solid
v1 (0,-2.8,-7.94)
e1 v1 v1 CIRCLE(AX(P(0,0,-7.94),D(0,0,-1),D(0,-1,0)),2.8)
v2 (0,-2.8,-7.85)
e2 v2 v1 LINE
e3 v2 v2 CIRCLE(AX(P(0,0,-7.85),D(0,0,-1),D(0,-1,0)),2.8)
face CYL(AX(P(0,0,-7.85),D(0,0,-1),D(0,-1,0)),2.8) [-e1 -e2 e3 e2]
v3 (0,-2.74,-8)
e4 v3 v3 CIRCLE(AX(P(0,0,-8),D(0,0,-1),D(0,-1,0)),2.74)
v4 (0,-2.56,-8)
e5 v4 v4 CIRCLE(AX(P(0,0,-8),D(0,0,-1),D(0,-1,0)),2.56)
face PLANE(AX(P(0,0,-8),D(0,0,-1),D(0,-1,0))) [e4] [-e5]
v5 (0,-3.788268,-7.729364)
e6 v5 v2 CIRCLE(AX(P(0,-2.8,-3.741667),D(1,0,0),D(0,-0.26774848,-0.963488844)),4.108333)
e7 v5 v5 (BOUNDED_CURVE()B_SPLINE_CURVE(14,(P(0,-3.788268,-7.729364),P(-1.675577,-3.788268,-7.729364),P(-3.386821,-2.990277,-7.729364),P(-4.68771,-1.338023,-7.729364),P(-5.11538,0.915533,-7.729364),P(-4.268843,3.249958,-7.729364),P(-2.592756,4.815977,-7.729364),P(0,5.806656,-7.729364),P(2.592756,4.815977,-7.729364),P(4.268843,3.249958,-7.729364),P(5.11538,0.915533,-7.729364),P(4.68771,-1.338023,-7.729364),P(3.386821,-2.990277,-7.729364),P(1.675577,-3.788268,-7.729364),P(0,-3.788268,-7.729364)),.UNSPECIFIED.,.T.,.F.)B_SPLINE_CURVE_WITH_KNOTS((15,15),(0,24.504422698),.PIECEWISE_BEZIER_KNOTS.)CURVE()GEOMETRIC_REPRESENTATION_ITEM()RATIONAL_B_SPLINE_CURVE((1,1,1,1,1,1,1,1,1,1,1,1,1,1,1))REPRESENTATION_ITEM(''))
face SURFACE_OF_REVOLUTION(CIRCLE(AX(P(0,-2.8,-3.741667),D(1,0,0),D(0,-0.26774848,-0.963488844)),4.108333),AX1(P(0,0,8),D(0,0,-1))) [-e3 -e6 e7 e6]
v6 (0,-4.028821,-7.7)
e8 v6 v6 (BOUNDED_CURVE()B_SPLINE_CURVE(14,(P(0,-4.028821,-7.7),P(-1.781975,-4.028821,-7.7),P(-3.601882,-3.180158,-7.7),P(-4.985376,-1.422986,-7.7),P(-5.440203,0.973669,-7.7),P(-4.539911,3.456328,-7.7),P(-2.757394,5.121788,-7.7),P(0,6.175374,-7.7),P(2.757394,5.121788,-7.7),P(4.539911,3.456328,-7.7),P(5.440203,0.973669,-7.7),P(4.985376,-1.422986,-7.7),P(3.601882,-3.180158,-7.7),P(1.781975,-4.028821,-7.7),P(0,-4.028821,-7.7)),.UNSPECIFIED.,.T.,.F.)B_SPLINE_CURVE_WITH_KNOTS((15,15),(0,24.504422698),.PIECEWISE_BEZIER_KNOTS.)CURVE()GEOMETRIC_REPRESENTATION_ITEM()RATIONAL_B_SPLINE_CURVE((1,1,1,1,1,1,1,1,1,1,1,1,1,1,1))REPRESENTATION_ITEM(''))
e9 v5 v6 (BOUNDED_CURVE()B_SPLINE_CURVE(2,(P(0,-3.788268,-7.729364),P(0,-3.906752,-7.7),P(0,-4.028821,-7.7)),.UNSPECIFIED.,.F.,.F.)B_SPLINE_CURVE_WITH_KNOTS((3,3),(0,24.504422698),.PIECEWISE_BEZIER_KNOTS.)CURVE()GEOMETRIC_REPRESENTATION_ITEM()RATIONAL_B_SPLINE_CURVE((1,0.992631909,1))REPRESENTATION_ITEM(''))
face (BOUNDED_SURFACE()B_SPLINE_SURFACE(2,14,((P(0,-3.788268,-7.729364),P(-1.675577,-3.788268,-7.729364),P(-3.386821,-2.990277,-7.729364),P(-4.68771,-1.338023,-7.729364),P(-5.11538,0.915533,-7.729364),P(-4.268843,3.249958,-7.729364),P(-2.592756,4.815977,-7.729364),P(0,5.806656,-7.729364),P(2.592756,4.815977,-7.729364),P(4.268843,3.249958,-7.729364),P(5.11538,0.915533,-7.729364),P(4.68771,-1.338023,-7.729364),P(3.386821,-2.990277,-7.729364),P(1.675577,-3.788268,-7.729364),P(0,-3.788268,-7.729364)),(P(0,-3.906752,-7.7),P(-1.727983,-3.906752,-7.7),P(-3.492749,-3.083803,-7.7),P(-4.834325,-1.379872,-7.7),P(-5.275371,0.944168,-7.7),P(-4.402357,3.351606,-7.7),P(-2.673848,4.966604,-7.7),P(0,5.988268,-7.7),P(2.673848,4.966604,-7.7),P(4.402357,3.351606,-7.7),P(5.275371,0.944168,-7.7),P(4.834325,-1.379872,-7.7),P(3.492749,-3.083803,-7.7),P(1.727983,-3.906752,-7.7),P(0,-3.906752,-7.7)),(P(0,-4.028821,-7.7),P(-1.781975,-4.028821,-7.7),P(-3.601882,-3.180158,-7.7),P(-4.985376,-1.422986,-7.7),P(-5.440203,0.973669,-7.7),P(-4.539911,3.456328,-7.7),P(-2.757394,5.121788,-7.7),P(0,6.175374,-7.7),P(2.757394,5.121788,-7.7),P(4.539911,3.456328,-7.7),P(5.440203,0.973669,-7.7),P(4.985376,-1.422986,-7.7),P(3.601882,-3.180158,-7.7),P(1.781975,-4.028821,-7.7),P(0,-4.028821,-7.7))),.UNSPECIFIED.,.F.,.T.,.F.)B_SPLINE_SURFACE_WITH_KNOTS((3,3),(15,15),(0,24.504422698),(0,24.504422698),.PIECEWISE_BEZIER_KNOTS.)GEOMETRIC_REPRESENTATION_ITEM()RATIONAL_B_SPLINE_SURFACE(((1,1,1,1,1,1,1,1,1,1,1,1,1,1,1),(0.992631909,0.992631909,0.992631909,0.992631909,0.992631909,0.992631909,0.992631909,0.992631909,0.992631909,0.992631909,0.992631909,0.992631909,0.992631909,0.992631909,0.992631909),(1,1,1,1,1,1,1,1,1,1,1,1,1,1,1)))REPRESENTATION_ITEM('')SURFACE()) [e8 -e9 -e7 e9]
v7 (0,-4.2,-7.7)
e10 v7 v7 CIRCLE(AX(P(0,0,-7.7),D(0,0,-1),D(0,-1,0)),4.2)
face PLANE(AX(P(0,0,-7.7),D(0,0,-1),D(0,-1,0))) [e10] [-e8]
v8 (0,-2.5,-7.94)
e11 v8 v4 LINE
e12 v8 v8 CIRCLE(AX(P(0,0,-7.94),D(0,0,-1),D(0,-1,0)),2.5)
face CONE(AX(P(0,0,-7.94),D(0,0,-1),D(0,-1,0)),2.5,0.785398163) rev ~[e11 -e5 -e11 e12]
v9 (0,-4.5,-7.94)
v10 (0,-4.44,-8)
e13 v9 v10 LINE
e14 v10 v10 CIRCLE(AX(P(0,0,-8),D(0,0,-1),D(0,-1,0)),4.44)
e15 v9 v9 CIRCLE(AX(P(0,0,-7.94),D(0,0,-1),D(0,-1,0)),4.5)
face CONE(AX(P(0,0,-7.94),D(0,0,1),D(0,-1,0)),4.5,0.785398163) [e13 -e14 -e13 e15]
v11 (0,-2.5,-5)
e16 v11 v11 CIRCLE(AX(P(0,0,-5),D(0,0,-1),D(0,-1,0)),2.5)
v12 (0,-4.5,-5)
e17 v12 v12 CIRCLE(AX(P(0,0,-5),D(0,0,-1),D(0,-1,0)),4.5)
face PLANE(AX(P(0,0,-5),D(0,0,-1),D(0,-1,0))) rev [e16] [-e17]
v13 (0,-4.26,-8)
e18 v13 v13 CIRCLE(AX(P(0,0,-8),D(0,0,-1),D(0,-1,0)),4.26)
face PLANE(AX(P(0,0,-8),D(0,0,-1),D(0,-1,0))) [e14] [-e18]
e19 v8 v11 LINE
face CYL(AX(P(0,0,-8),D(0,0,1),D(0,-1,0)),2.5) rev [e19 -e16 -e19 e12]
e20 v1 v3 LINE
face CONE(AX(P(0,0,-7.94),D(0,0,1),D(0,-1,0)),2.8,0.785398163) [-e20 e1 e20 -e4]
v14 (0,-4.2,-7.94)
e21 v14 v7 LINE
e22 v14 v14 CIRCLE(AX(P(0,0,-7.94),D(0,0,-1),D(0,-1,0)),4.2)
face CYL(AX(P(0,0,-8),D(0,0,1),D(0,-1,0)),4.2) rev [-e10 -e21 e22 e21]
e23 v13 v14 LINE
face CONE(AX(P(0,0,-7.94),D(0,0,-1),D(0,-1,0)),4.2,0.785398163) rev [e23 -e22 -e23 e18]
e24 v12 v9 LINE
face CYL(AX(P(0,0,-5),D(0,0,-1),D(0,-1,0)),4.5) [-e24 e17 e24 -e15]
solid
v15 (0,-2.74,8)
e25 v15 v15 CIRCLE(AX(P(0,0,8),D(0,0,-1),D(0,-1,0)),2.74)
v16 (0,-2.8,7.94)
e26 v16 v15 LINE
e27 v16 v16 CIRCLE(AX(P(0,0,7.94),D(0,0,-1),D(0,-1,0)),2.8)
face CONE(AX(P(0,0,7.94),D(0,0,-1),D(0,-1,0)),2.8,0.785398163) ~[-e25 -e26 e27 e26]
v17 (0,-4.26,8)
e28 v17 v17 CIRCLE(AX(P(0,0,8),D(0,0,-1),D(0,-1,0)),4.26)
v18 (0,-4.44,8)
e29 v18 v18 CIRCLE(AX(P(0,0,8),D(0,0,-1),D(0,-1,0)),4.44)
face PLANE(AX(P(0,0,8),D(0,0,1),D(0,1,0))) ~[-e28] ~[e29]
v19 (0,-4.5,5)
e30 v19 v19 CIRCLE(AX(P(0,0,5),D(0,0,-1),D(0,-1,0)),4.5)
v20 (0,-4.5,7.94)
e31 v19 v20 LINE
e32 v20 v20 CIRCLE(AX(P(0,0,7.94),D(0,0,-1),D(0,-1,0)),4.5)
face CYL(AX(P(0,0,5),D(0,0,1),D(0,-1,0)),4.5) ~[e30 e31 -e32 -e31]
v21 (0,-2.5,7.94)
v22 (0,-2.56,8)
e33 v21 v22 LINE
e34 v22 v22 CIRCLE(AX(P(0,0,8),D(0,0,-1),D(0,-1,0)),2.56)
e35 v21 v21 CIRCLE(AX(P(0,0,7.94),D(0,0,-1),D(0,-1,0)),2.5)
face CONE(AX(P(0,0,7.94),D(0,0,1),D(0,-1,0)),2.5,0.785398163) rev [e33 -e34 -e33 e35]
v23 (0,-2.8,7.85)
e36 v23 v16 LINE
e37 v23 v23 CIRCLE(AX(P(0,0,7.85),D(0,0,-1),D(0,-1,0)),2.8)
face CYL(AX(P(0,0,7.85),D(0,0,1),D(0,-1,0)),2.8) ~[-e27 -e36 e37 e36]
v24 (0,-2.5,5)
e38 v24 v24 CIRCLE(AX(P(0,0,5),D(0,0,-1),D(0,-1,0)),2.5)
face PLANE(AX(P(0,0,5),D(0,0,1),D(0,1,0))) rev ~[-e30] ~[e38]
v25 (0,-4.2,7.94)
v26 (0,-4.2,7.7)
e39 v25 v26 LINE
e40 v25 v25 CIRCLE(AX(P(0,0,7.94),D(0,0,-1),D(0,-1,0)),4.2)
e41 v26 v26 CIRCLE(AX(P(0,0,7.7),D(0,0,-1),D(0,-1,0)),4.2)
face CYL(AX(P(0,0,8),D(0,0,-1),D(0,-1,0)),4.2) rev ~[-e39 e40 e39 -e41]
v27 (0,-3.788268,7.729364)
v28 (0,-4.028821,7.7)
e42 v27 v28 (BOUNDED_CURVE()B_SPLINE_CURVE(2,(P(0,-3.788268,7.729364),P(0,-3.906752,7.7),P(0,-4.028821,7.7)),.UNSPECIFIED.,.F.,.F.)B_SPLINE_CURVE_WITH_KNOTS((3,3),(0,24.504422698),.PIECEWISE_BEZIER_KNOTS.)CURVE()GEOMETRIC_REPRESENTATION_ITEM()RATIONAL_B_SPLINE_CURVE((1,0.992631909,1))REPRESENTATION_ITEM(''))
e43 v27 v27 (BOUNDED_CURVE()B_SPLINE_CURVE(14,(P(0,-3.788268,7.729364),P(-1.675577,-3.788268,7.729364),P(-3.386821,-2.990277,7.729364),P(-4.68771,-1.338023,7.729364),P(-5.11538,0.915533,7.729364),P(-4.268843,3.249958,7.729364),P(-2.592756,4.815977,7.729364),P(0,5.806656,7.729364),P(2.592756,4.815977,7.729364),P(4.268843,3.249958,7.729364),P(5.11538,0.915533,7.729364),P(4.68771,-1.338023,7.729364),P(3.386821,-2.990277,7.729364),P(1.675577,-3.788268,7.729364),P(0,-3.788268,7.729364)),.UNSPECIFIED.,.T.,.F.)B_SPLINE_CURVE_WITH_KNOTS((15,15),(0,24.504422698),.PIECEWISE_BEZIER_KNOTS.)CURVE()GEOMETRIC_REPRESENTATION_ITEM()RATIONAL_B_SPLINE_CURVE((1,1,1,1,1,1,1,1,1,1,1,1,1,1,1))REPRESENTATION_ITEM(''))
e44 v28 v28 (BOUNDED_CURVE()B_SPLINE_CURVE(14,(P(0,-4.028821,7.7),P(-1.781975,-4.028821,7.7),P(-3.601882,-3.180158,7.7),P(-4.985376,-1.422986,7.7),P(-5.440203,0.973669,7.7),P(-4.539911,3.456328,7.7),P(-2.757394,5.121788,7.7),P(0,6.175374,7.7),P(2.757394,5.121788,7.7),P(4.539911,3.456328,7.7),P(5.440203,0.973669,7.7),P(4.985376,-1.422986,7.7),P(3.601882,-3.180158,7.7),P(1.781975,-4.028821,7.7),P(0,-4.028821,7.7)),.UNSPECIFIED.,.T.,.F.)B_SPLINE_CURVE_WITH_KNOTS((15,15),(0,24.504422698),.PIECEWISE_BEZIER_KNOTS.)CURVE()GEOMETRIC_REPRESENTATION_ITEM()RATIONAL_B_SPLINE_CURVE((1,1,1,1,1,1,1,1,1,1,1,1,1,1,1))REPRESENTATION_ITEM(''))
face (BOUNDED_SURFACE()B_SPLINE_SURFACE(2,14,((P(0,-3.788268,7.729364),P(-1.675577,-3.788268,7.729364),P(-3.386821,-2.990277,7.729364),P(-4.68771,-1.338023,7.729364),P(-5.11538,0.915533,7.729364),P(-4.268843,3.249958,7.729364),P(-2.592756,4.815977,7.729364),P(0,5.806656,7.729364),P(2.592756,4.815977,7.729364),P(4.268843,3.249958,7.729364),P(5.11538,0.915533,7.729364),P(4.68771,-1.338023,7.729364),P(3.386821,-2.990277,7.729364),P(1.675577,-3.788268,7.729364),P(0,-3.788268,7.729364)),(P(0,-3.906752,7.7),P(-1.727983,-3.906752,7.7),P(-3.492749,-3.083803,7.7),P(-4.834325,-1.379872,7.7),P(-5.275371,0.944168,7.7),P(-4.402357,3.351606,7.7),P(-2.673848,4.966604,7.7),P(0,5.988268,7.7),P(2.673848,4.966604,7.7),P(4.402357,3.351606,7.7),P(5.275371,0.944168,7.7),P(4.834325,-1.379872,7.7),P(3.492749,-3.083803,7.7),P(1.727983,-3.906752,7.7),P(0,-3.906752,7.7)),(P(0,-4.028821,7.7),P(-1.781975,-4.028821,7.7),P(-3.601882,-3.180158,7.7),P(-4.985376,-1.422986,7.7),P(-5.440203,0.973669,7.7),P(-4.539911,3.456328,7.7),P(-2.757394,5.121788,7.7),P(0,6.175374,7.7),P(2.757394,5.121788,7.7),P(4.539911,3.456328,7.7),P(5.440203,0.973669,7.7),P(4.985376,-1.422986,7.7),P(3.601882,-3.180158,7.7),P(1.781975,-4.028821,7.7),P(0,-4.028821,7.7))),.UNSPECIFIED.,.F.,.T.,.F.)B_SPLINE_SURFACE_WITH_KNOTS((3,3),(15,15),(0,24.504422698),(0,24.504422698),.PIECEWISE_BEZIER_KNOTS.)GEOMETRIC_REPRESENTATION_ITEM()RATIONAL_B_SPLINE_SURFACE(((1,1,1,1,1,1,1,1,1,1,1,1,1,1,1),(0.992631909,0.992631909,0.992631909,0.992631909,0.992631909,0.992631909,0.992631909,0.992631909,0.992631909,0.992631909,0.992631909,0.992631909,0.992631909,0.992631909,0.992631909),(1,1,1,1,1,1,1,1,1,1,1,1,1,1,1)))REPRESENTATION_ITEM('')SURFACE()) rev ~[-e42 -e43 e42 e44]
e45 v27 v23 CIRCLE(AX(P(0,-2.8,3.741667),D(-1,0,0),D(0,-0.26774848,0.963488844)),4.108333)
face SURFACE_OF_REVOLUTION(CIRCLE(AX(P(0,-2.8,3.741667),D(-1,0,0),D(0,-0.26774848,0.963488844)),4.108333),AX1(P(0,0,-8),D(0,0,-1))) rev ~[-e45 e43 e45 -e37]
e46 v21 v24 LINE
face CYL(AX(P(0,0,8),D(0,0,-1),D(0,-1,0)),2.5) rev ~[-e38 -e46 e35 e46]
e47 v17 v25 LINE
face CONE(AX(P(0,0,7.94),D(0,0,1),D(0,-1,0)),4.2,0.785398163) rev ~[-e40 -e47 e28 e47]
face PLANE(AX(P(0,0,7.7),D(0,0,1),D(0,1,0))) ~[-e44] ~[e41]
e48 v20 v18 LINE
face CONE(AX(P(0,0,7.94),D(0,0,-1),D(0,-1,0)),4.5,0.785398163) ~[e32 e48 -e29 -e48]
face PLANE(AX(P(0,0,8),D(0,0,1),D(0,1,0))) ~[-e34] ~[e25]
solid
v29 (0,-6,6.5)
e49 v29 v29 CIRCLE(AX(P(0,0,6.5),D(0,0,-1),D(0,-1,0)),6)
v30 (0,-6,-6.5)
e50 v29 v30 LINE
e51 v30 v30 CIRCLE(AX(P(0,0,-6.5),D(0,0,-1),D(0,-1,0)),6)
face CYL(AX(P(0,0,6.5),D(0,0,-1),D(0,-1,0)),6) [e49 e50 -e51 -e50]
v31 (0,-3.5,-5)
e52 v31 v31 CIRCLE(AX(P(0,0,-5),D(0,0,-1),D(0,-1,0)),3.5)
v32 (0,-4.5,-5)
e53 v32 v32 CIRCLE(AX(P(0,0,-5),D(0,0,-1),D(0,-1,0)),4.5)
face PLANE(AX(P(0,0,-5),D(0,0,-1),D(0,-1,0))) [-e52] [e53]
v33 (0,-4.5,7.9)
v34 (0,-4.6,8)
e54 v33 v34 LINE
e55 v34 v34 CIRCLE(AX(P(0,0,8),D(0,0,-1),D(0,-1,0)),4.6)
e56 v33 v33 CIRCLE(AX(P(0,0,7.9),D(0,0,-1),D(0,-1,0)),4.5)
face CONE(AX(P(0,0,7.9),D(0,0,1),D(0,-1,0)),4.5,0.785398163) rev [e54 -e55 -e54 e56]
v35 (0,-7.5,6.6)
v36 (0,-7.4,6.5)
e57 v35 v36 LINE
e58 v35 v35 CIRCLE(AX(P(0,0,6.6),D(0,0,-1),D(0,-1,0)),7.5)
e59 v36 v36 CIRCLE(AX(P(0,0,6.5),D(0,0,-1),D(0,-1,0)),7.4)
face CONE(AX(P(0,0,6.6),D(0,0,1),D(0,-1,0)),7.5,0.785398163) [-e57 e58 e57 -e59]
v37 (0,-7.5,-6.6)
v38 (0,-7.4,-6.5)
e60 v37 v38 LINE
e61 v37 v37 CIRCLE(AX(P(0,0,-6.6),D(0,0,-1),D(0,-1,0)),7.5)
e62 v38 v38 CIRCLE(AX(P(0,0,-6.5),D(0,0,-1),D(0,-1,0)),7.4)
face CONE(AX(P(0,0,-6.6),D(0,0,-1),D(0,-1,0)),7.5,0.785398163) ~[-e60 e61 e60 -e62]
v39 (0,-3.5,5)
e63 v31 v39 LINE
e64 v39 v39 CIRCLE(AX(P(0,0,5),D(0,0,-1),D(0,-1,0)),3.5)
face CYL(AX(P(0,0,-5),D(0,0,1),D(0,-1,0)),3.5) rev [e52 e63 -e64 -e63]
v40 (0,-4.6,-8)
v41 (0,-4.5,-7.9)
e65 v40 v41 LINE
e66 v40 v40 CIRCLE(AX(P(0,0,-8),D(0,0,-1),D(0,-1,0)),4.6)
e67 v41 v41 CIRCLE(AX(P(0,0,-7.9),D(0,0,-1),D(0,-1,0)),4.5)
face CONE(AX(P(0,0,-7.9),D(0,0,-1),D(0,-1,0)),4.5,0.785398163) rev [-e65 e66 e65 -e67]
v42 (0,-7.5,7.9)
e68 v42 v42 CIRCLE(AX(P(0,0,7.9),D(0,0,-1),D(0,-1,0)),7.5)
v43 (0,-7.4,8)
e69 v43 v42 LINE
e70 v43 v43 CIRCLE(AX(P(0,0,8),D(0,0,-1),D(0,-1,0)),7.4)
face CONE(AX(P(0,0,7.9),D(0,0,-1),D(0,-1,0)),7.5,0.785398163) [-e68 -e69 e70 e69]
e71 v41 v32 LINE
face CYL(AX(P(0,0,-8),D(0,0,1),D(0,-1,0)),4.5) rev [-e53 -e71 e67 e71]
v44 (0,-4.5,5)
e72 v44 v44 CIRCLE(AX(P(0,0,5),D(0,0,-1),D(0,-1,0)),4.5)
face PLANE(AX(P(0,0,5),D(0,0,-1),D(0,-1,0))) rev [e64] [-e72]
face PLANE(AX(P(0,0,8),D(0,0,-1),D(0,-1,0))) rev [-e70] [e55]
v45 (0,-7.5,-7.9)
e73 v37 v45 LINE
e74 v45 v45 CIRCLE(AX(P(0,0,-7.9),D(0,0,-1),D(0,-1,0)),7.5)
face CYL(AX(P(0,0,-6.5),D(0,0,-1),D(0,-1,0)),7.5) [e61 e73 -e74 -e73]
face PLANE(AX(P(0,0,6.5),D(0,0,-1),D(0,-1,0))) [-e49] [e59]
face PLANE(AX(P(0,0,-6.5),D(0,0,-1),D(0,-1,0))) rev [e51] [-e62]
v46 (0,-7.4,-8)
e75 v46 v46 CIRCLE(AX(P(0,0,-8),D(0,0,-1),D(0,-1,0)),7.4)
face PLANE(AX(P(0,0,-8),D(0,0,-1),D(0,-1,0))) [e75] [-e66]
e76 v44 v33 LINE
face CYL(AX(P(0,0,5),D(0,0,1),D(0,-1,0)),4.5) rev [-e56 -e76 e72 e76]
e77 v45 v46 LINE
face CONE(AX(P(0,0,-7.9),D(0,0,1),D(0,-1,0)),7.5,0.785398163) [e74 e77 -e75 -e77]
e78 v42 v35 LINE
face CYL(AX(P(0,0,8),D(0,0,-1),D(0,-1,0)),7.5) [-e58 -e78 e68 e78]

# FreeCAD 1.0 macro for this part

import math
import FreeCAD as App
import Part
import Sketcher
Q = App.Units.Quantity


def edges_at(feature, points):
    """Names of the edges that pass closest to the given points."""
    edges = feature.Shape.Edges
    near = lambda p: min(range(len(edges)), key=lambda i: edges[i].distToShape(Part.Vertex(*p))[0])
    return sorted({f"Edge{near(p) + 1}" for p in points})


def add_polygon(sketch, points):
    """Adds a closed chain of lines whose ends are joined by coincident constraints."""
    first, n = sketch.GeometryCount, len(points)
    for a, b in zip(points, points[1:] + points[:1]):
        sketch.addGeometry(Part.LineSegment(App.Vector(*a, 0), App.Vector(*b, 0)), False)
    for i in range(n):
        sketch.addConstraint(Sketcher.Constraint("Coincident", first + i, 2, first + (i + 1) % n, 1))

doc = App.newDocument("Part")
body = doc.addObject("PartDesign::Body", "Body")

# Sketch on YZ plane
sketch1 = body.newObject("Sketcher::SketchObject", "Sketch")
sketch1.AttachmentSupport = (doc.getObject("YZ_Plane"), [""])
sketch1.MapMode = "FlatFace"
sketch1.addGeometry(Part.LineSegment(App.Vector(2.5, -5, 0), App.Vector(2.5, -8, 0)), False)
sketch1.addGeometry(Part.LineSegment(App.Vector(2.5, -8, 0), App.Vector(2.8, -8, 0)), False)
sketch1.addGeometry(Part.LineSegment(App.Vector(2.8, -8, 0), App.Vector(2.8, -7.85, 0)), False)
sketch1.addGeometry(Part.ArcOfCircle(Part.Circle(App.Vector(2.8, -3.74, 0), App.Vector(0, 0, 1), 4.11), math.radians(-90), math.radians(-74.47)), False)
sketch1.addGeometry(Part.LineSegment(App.Vector(3.9, -7.7, 0), App.Vector(4.2, -7.7, 0)), False)
sketch1.addGeometry(Part.LineSegment(App.Vector(4.2, -7.7, 0), App.Vector(4.2, -8, 0)), False)
sketch1.addGeometry(Part.LineSegment(App.Vector(4.2, -8, 0), App.Vector(4.5, -8, 0)), False)
sketch1.addGeometry(Part.LineSegment(App.Vector(4.5, -8, 0), App.Vector(4.5, -5, 0)), False)
sketch1.addGeometry(Part.LineSegment(App.Vector(4.5, -5, 0), App.Vector(2.5, -5, 0)), False)
sketch1.addConstraint(Sketcher.Constraint("Coincident", 0, 2, 1, 1))
sketch1.addConstraint(Sketcher.Constraint("Coincident", 1, 2, 2, 1))
sketch1.addConstraint(Sketcher.Constraint("Coincident", 2, 2, 3, 1))
sketch1.addConstraint(Sketcher.Constraint("Coincident", 3, 2, 4, 1))
sketch1.addConstraint(Sketcher.Constraint("Coincident", 4, 2, 5, 1))
sketch1.addConstraint(Sketcher.Constraint("Coincident", 5, 2, 6, 1))
sketch1.addConstraint(Sketcher.Constraint("Coincident", 6, 2, 7, 1))
sketch1.addConstraint(Sketcher.Constraint("Coincident", 7, 2, 8, 1))
sketch1.addConstraint(Sketcher.Constraint("Coincident", 8, 2, 0, 1))
sketch1.addConstraint(Sketcher.Constraint("Vertical", 0))
sketch1.addConstraint(Sketcher.Constraint("Horizontal", 1))
sketch1.addConstraint(Sketcher.Constraint("Vertical", 2))
sketch1.addConstraint(Sketcher.Constraint("Horizontal", 4))
sketch1.addConstraint(Sketcher.Constraint("Vertical", 5))
sketch1.addConstraint(Sketcher.Constraint("Horizontal", 6))
sketch1.addConstraint(Sketcher.Constraint("Vertical", 7))
sketch1.addConstraint(Sketcher.Constraint("Horizontal", 8))
sketch1.addConstraint(Sketcher.Constraint("Horizontal", 1, 2, 5, 2))
sketch1.addConstraint(Sketcher.Constraint("Vertical", 3, 3, 1, 2))
sketch1.addConstraint(Sketcher.Constraint("Equal", 1, 4))
sketch1.addConstraint(Sketcher.Constraint("Equal", 4, 6))
sketch1.addConstraint(Sketcher.Constraint("Equal", 6, 5))
sketch1.addConstraint(Sketcher.Constraint("DistanceX", 8, 2, 8, 1, Q("2 mm")))
sketch1.addConstraint(Sketcher.Constraint("DistanceY", 0, 2, 0, 1, Q("3 mm")))
sketch1.addConstraint(Sketcher.Constraint("DistanceX", 1, 1, 1, 2, Q("0.3 mm")))
sketch1.addConstraint(Sketcher.Constraint("DistanceY", 0, 2, -1, 1, Q("8 mm")))
sketch1.addConstraint(Sketcher.Constraint("DistanceY", 2, 1, 2, 2, Q("0.15 mm")))
sketch1.addConstraint(Sketcher.Constraint("DistanceX", -1, 1, 3, 3, Q("2.8 mm")))
revolution = body.newObject("PartDesign::Revolution", "Revolution")
revolution.Profile = sketch1
revolution.ReferenceAxis = (sketch1, ["V_Axis"])
revolution.Angle = 360
doc.recompute()

chamfer = body.newObject("PartDesign::Chamfer", "Chamfer")
chamfer.Base = (revolution, edges_at(revolution, [
    (0, 2.5, -8),
    (0, 2.8, -8),
    (0, 4.2, -8),
    (0, 4.5, -8),
]))
chamfer.Size = 0.06
doc.recompute()

fillet = body.newObject("PartDesign::Fillet", "Fillet")
fillet.Base = (chamfer, edges_at(chamfer, [(0, 3.9, -7.7)]))
fillet.Radius = 1
body2 = doc.addObject("PartDesign::Body", "Body001")
doc.recompute()

mirroring = doc.addObject("Part::Mirroring", "Mirroring")
mirroring.Source = body
mirroring.Base = App.Vector(0, 0, 0)
mirroring.Normal = App.Vector(0, 0, 1)
body2.BaseFeature = mirroring
doc.recompute()
body3 = doc.addObject("PartDesign::Body", "Body002")

# Sketch on YZ plane
sketch2 = body3.newObject("Sketcher::SketchObject", "Sketch001")
sketch2.AttachmentSupport = (doc.getObject("YZ_Plane002"), [""])
sketch2.MapMode = "FlatFace"
add_polygon(sketch2, [(7.5, -8), (7.5, -6.5), (6, -6.5), (6, 6.5), (7.5, 6.5), (7.5, 8), (4.5, 8), (4.5, 5), (3.5, 5), (3.5, -5), (4.5, -5), (4.5, -8)])  # lines 0-11
sketch2.addConstraint(Sketcher.Constraint("Vertical", 0))
sketch2.addConstraint(Sketcher.Constraint("Horizontal", 1))
sketch2.addConstraint(Sketcher.Constraint("Vertical", 2))
sketch2.addConstraint(Sketcher.Constraint("Horizontal", 3))
sketch2.addConstraint(Sketcher.Constraint("Vertical", 4))
sketch2.addConstraint(Sketcher.Constraint("Horizontal", 5))
sketch2.addConstraint(Sketcher.Constraint("Vertical", 6))
sketch2.addConstraint(Sketcher.Constraint("Horizontal", 7))
sketch2.addConstraint(Sketcher.Constraint("Vertical", 8))
sketch2.addConstraint(Sketcher.Constraint("Horizontal", 9))
sketch2.addConstraint(Sketcher.Constraint("Vertical", 10))
sketch2.addConstraint(Sketcher.Constraint("Horizontal", 11))
sketch2.addConstraint(Sketcher.Constraint("Symmetric", 0, 2, 3, 2, -1))
sketch2.addConstraint(Sketcher.Constraint("Symmetric", 6, 2, 9, 2, -1))
sketch2.addConstraint(Sketcher.Constraint("Equal", 3, 0))
sketch2.addConstraint(Sketcher.Constraint("Equal", 0, 4))
sketch2.addConstraint(Sketcher.Constraint("Equal", 11, 6))
sketch2.addConstraint(Sketcher.Constraint("DistanceX", 5, 2, 5, 1, Q("3 mm")))
sketch2.addConstraint(Sketcher.Constraint("DistanceX", 7, 2, 7, 1, Q("1 mm")))
sketch2.addConstraint(Sketcher.Constraint("DistanceY", 2, 1, 2, 2, Q("13 mm")))
sketch2.addConstraint(Sketcher.Constraint("DistanceY", 8, 2, 8, 1, Q("10 mm")))
sketch2.addConstraint(Sketcher.Constraint("DistanceX", -1, 1, 1, 2, Q("6 mm")))
revolution2 = body3.newObject("PartDesign::Revolution", "Revolution001")
revolution2.Profile = sketch2
revolution2.ReferenceAxis = (sketch2, ["V_Axis"])
revolution2.Angle = 360
doc.recompute()

chamfer2 = body3.newObject("PartDesign::Chamfer", "Chamfer001")
chamfer2.Base = (revolution2, edges_at(revolution2, [
    (0, 4.5, 8),
    (0, 4.5, -8),
    (0, 7.5, -8),
    (0, 7.5, -6.5),
    (0, 7.5, 6.5),
    (0, 7.5, 8),
]))
chamfer2.Size = 0.1
mirroring.Visibility = False

doc.recompute()
